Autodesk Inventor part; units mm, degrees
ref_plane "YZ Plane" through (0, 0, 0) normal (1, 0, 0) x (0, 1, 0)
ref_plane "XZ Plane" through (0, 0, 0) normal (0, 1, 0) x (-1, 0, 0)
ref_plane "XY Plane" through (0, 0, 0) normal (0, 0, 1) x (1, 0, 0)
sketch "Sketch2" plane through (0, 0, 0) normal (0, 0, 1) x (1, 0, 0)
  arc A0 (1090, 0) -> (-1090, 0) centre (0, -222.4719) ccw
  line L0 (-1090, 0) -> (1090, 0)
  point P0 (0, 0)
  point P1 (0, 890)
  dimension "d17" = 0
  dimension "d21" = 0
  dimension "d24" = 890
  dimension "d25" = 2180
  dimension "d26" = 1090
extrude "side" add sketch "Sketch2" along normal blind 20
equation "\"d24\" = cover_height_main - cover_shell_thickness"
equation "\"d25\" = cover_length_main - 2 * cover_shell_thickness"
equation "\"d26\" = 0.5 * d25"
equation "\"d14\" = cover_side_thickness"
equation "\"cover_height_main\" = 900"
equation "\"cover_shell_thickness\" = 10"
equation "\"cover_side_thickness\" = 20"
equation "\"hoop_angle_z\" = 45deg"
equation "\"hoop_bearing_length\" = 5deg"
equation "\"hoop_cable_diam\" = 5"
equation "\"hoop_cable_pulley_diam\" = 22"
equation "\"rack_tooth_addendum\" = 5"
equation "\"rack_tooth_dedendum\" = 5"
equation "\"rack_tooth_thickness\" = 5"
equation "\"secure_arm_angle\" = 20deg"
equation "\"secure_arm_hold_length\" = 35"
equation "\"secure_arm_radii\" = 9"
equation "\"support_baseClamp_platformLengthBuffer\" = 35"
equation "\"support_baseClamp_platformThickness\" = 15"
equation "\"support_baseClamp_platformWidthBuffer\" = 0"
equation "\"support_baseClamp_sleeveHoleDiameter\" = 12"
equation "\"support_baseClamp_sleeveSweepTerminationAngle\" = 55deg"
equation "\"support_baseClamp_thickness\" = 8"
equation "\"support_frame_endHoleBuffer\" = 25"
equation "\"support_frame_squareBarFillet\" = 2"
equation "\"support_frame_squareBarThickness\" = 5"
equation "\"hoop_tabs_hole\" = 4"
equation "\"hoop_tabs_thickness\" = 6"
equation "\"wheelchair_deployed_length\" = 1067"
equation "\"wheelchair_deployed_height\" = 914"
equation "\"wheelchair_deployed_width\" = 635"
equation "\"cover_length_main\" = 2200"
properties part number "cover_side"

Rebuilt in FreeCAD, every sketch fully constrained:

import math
import FreeCAD as App
import Part
import Sketcher
Q = App.Units.Quantity

doc = App.newDocument("Part")
body = doc.addObject("PartDesign::Body", "Body")

# Sketch on XY plane
sketch1 = body.newObject("Sketcher::SketchObject", "Sketch")
sketch1.AttachmentSupport = (doc.getObject("XY_Plane"), [""])
sketch1.MapMode = "FlatFace"
sketch1.addGeometry(Part.LineSegment(App.Vector(-1090, 0, 0), App.Vector(1090, 0, 0)), False)
sketch1.addGeometry(Part.ArcOfCircle(Part.Circle(App.Vector(0, -222, 0), App.Vector(0, 0, 1), 1112), math.radians(12), math.radians(168)), False)
sketch1.addConstraint(Sketcher.Constraint("Coincident", 0, 1, 1, 2))
sketch1.addConstraint(Sketcher.Constraint("Coincident", 1, 1, 0, 2))
sketch1.addConstraint(Sketcher.Constraint("Horizontal", 0))
sketch1.addConstraint(Sketcher.Constraint("PointOnObject", 1, 3, -2))
sketch1.addConstraint(Sketcher.Constraint("PointOnObject", 0, 1, -1))
sketch1.addConstraint(Sketcher.Constraint("DistanceX", 0, 1, 0, 2, Q("2180 mm")))
sketch1.addConstraint(Sketcher.Constraint("Radius", 1, Q("1112.472 mm")))
pad1 = body.newObject("PartDesign::Pad", "Pad")
pad1.Profile = sketch1
pad1.Length = 20

doc.recompute()
